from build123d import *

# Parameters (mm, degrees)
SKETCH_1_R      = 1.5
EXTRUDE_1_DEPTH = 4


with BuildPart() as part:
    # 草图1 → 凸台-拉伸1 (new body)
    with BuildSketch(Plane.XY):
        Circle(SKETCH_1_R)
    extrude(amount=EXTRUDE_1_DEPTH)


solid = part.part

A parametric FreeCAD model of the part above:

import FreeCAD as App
import Part
import Sketcher

V = App.Vector
Q = App.Units.Quantity

doc = App.newDocument("Part")
body = doc.addObject("PartDesign::Body", "Body")

# Sketch on XY plane
sketch1 = doc.addObject("Sketcher::SketchObject", "Sketch")
body.addObject(sketch1)
sketch1.AttachmentSupport = (doc.XY_Plane, [""])
sketch1.MapMode = "FlatFace"
sketch1.addGeometry(Part.Circle(V(0, 0, 0), V(0, 0, 1), 1.5), False)
sketch1.addConstraint(Sketcher.Constraint("Coincident", 0, 3, -1, 1))
sketch1.addConstraint(Sketcher.Constraint("Diameter", 0, Q("3 mm")))
pad1 = doc.addObject("PartDesign::Pad", "Pad")
body.addObject(pad1)
pad1.Profile = sketch1
pad1.Length = 4

doc.recompute()
